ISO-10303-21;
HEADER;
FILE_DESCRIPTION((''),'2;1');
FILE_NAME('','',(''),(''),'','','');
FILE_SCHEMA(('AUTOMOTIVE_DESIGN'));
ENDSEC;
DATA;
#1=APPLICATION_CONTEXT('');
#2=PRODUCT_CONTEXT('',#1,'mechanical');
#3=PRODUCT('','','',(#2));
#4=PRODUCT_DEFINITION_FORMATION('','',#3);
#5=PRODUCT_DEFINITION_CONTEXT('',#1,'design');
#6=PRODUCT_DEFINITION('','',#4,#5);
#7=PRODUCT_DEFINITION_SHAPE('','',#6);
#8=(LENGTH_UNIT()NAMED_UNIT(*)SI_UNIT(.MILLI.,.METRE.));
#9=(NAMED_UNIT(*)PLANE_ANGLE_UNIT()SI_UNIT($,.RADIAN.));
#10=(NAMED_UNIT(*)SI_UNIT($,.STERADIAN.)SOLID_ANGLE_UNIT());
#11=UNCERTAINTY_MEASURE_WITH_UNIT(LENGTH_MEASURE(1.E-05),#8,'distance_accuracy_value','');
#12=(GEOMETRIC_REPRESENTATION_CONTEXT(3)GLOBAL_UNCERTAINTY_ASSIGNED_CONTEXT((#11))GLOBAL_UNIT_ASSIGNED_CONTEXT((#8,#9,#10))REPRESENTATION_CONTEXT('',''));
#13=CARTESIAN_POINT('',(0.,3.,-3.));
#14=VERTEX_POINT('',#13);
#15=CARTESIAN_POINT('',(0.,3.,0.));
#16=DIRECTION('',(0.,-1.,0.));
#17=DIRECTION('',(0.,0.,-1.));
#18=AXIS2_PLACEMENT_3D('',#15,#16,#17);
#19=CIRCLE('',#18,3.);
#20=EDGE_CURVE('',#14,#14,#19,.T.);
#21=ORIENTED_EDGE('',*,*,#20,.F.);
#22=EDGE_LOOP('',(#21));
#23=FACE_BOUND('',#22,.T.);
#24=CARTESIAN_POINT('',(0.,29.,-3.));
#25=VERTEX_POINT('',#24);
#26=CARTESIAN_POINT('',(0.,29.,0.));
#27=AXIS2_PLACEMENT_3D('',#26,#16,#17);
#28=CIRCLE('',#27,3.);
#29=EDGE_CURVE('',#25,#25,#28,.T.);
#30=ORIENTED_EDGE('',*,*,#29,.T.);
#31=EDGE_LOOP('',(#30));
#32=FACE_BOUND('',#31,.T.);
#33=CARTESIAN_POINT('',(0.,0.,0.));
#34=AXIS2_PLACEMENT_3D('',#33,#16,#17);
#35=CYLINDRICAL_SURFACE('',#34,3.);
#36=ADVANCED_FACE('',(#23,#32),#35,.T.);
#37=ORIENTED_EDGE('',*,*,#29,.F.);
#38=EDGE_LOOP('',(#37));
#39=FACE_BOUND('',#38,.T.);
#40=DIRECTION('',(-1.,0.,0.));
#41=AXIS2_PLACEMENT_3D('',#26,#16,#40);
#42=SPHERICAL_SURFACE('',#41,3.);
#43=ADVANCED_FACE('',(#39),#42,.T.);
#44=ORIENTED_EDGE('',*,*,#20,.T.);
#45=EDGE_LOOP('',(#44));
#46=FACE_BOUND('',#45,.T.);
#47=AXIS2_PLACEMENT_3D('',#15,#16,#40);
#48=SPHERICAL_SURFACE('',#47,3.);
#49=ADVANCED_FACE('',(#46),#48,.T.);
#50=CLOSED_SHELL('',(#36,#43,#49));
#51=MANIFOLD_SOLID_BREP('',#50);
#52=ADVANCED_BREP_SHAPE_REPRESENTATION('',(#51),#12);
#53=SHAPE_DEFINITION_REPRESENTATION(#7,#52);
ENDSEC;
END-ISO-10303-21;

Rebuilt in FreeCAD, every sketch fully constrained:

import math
import FreeCAD as App
import Part
import Sketcher

V = App.Vector
Q = App.Units.Quantity

doc = App.newDocument("Part")
body = doc.addObject("PartDesign::Body", "Body")

sketch1 = doc.addObject("Sketcher::SketchObject", "Sketch")
body.addObject(sketch1)
sketch1.AttachmentSupport = (doc.XY_Plane, [""])
sketch1.MapMode = "FlatFace"
sketch1.addGeometry([
    Part.LineSegment(V(-3, 29, 0), V(-3, 3, 0)),
    Part.ArcOfCircle(Part.Circle(V(0, 3, 0), V(0, 0, 1), 3), math.radians(180), math.radians(270)),
    Part.LineSegment(V(0, 0, 0), V(0, 32, 0)),
    Part.ArcOfCircle(Part.Circle(V(0, 29, 0), V(0, 0, 1), 3), math.radians(90), math.radians(180)),
], False)
sketch1.addConstraint([
    Sketcher.Constraint("Tangent", 0, 2, 1, 1),
    Sketcher.Constraint("Coincident", 1, 2, 2, 1),
    Sketcher.Constraint("Coincident", 2, 2, 3, 1),
    Sketcher.Constraint("Tangent", 3, 2, 0, 1),
    Sketcher.Constraint("Vertical", 0),
    Sketcher.Constraint("Vertical", 2),
    Sketcher.Constraint("Coincident", 1, 2, -1, 1),
    Sketcher.Constraint("Equal", 1, 3),
    Sketcher.Constraint("PointOnObject", 1, 3, -2),
    Sketcher.Constraint("Radius", 1, Q("3 mm")),
    Sketcher.Constraint("DistanceY", 0, 2, 0, 1, Q("26 mm")),
])
revolution = doc.addObject("PartDesign::Revolution", "Revolution")
body.addObject(revolution)
revolution.Profile = sketch1
revolution.ReferenceAxis = (sketch1, ["V_Axis"])
revolution.Angle = 360

doc.recompute()
